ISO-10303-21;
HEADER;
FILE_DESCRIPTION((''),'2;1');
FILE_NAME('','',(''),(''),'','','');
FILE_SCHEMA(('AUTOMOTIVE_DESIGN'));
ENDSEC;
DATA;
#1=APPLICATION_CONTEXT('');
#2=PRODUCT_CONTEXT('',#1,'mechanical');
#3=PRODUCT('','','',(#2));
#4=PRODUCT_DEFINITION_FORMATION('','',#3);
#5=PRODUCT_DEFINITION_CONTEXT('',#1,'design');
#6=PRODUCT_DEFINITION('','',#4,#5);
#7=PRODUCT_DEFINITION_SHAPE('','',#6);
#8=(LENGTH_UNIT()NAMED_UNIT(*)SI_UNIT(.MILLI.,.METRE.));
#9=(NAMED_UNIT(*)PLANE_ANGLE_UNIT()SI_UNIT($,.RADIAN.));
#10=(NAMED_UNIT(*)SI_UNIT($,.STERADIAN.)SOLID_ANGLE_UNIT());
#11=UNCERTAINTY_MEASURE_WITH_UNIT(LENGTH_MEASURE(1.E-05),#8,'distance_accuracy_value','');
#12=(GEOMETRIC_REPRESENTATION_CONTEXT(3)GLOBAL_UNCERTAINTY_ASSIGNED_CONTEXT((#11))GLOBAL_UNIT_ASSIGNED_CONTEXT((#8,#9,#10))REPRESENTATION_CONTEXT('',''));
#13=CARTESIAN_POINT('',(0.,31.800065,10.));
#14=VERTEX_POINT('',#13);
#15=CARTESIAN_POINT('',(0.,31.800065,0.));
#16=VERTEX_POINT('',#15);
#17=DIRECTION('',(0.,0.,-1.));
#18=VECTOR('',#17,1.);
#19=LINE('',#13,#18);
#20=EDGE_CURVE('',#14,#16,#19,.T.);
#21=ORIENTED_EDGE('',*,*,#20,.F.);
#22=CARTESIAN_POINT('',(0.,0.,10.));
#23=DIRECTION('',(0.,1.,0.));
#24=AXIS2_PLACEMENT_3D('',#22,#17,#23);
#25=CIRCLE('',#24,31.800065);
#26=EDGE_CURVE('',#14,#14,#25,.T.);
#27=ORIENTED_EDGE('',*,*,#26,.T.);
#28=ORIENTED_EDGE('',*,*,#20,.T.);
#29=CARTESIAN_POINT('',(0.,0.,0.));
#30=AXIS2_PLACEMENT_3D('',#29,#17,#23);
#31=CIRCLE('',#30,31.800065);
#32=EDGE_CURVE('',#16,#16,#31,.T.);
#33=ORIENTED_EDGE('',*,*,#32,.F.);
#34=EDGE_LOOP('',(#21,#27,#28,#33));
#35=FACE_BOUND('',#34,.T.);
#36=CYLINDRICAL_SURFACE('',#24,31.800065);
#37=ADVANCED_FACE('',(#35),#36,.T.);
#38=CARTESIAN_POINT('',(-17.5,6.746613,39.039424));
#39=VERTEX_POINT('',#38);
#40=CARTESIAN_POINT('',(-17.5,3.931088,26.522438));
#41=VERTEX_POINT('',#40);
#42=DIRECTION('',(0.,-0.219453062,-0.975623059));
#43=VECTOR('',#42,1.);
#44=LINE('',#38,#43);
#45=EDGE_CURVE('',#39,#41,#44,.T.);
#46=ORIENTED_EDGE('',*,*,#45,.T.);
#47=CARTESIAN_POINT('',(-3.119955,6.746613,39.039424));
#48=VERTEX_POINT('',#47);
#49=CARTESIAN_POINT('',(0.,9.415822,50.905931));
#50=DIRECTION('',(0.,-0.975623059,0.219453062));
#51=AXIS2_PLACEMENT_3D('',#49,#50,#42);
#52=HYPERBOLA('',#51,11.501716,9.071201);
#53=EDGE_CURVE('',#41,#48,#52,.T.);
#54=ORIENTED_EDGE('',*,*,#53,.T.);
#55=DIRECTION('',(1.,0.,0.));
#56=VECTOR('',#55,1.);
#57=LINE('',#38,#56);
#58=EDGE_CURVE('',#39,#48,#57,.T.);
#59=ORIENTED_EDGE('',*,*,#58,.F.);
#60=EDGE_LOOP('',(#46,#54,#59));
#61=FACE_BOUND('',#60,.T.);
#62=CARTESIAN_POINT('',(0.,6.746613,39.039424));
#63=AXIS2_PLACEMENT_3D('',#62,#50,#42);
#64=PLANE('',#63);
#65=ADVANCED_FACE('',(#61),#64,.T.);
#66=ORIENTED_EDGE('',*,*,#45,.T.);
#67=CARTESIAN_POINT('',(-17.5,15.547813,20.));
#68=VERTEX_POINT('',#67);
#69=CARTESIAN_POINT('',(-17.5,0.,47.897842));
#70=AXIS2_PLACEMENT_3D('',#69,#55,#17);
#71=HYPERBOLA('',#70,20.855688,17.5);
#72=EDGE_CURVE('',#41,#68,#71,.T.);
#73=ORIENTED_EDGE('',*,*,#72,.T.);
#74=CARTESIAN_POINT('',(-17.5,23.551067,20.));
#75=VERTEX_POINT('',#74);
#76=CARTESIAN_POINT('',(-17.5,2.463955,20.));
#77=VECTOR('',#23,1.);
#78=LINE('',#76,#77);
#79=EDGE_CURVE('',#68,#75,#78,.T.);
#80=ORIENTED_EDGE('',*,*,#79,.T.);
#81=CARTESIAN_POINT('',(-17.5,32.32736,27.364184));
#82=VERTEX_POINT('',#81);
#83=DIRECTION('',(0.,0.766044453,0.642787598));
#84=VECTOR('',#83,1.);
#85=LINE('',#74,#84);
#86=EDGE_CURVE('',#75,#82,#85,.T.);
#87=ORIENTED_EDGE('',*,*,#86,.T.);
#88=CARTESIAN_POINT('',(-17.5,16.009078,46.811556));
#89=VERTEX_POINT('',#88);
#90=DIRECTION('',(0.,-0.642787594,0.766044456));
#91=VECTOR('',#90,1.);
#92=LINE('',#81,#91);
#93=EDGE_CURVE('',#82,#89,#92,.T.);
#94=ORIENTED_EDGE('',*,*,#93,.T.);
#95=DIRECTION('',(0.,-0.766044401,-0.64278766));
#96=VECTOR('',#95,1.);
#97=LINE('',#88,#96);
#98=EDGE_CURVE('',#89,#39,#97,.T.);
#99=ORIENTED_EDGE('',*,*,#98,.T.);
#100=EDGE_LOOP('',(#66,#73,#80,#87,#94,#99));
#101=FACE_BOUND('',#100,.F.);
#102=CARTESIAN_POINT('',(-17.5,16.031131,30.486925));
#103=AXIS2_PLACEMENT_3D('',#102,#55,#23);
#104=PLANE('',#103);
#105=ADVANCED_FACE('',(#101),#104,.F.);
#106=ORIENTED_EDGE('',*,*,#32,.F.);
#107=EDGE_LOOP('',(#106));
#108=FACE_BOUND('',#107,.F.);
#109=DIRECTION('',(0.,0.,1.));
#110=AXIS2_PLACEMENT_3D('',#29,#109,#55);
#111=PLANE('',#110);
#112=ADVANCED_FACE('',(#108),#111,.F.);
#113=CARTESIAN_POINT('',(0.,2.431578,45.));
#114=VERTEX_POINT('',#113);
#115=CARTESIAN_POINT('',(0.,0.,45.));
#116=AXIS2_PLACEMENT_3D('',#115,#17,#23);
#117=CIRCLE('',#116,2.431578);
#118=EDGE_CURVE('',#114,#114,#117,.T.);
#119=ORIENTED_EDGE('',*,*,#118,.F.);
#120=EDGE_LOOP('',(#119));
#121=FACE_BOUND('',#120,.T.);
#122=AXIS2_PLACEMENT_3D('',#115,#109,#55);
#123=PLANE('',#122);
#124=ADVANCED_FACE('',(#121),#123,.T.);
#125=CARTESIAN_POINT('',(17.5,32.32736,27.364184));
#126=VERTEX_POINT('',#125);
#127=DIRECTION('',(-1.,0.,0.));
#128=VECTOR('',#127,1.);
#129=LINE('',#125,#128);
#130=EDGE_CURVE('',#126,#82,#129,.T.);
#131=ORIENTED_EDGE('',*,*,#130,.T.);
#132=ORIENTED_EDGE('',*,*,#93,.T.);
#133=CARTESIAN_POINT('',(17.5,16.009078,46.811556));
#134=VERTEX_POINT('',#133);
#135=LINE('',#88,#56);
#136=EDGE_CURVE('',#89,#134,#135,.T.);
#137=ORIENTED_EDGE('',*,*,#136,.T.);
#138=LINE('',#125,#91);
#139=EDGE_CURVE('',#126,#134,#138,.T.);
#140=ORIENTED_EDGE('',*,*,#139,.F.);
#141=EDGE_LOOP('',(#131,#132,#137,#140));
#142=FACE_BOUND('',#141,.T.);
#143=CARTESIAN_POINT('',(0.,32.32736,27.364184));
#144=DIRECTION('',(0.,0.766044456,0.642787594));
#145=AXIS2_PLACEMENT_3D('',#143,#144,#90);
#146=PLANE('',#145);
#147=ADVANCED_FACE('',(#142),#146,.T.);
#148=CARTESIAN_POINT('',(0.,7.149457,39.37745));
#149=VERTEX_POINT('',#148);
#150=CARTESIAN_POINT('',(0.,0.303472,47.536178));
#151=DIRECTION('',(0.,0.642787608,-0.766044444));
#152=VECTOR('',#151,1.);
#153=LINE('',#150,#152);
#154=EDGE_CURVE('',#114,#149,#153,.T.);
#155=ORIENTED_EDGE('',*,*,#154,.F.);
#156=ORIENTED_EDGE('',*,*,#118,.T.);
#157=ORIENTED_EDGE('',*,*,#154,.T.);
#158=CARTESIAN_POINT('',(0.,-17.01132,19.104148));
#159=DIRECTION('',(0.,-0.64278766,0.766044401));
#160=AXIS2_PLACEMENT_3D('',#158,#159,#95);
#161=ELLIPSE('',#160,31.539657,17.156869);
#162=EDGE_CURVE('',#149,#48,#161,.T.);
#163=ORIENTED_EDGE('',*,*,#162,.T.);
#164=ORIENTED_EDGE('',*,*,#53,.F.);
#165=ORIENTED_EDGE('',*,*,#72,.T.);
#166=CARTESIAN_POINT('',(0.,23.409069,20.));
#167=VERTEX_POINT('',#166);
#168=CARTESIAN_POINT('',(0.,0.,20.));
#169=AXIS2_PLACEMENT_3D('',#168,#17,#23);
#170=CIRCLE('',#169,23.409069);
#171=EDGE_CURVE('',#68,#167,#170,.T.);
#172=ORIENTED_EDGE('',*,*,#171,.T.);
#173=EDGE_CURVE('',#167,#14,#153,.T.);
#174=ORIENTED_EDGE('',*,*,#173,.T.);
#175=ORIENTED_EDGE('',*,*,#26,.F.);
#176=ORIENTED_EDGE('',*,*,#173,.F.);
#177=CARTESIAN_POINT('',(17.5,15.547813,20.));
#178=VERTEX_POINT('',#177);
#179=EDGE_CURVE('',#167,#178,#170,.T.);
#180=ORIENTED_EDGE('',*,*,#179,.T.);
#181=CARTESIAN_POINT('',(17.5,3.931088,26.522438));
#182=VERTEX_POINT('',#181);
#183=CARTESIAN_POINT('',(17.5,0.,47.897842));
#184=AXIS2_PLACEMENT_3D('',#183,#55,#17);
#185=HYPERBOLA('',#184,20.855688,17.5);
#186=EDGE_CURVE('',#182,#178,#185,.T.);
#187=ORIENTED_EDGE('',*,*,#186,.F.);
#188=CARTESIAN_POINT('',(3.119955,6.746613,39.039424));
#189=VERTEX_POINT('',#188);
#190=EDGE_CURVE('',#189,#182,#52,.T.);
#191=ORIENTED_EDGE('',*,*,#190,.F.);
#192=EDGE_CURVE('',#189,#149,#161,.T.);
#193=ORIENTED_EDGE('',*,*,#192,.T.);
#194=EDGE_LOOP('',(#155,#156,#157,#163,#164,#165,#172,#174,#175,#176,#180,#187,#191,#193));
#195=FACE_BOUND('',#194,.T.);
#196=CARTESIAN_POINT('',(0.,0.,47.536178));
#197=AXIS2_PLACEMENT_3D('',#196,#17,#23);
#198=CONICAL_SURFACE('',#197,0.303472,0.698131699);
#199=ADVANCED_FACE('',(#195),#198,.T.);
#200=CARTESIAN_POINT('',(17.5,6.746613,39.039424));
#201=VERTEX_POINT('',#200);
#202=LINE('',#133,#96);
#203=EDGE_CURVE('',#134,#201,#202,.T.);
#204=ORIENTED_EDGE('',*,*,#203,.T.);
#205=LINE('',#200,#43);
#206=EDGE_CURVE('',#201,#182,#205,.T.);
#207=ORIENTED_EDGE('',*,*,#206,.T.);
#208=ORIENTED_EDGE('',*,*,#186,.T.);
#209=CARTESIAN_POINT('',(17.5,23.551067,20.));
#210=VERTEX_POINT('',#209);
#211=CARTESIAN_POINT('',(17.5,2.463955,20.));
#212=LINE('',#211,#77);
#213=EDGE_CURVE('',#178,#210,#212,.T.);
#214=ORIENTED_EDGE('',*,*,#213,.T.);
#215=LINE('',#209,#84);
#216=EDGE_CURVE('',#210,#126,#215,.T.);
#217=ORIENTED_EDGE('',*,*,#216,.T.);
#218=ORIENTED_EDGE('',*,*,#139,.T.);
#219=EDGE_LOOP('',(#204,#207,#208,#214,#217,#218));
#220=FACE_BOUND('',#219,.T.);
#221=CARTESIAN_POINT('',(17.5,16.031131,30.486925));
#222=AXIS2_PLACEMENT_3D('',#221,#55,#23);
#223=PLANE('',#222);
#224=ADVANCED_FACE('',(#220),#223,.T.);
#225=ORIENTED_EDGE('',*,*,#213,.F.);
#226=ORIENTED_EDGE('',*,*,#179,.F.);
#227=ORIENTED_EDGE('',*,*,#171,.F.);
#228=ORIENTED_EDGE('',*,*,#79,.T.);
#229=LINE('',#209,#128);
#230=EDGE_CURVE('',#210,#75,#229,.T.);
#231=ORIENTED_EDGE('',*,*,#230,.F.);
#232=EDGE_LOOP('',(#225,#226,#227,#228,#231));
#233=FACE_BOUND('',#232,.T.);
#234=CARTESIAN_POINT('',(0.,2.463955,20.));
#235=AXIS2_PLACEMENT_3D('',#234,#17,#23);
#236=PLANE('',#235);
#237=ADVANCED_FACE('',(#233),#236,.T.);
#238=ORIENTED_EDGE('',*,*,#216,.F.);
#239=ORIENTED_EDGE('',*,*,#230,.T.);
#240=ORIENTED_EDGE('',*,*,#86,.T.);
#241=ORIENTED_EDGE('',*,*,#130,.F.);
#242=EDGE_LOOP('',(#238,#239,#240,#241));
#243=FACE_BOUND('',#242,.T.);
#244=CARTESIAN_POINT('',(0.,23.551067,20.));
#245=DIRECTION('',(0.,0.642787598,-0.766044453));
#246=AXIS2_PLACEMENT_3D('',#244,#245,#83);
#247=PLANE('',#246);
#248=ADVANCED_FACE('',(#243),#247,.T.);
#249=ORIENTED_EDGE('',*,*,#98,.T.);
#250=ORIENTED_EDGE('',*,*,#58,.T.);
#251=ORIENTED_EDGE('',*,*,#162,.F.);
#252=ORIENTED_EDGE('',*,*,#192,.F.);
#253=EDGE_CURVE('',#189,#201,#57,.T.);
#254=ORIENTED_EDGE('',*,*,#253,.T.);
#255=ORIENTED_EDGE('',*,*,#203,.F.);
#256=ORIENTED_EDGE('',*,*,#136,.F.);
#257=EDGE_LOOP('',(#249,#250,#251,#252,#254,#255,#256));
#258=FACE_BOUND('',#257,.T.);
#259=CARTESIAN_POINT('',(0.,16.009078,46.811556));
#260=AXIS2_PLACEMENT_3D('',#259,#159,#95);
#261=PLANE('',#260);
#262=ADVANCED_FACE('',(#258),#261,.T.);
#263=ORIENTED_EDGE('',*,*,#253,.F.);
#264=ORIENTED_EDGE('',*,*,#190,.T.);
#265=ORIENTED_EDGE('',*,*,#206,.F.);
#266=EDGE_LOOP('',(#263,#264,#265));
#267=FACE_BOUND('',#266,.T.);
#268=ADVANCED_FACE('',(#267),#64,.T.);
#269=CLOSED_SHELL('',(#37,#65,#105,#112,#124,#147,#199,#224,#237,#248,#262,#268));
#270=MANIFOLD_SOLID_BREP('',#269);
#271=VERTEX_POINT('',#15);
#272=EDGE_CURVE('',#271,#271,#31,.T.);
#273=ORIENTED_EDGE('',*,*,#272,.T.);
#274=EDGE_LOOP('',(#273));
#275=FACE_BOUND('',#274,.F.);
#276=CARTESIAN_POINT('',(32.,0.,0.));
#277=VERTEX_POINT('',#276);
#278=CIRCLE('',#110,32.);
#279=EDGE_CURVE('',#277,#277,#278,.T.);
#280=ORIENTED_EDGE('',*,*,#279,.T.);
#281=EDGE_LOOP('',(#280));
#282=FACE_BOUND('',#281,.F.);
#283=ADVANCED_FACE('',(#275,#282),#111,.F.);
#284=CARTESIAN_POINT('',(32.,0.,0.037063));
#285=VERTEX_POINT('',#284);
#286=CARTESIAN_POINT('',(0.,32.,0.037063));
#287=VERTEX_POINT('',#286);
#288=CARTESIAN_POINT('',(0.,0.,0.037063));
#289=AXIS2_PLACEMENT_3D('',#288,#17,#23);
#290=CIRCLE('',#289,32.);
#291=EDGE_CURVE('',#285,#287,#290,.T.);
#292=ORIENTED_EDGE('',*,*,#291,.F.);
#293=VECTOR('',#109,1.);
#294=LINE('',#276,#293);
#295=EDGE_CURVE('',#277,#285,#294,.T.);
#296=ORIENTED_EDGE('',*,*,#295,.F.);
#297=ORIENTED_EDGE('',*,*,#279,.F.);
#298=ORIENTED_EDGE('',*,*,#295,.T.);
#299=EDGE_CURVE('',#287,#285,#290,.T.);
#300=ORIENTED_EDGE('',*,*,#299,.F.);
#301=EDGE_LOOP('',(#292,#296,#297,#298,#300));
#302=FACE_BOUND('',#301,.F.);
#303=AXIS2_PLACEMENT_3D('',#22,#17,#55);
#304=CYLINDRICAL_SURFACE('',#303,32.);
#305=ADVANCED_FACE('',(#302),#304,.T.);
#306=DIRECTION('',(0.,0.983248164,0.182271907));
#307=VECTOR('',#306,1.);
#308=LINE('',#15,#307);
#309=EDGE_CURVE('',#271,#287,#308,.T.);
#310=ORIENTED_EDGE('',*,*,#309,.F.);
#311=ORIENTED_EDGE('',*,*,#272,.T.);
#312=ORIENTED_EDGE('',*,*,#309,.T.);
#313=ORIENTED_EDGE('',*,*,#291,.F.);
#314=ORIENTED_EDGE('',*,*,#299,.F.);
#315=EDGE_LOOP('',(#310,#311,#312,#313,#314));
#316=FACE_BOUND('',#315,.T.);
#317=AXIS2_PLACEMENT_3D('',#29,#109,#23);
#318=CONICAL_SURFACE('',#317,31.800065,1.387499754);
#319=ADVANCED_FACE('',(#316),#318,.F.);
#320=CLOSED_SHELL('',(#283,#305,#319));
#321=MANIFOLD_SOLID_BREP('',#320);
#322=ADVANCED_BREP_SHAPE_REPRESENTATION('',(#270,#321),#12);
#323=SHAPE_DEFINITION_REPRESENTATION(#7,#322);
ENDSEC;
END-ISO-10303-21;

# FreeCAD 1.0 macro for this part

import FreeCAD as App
import Part
import Sketcher

V = App.Vector
Q = App.Units.Quantity

doc = App.newDocument("Part")
params = doc.addObject("Spreadsheet::Sheet", "Params")
for row, (alias, value) in enumerate([
    ("sketch1_diameter", "64 mm"),
    ("pad1_length", "10 mm"),
    ("sketch2_diameter", "64 mm"),
    ("pad2_length", "35 mm"),
    ("sketch3_height", "10 mm"),
    ("sketch3_length", "49 mm"),
    ("groove_angle", "360 deg"),
    ("pad3_length", "35 mm"),
], start=1):
    params.set(f"A{row}", alias)
    params.set(f"B{row}", "=" + value)
    params.setAlias(f"B{row}", alias)

body = doc.addObject("PartDesign::Body", "Body")
body.AllowCompound = True

# Sketch on XY plane
sketch1 = body.newObject("Sketcher::SketchObject", "Sketch")
sketch1.AttachmentSupport = (doc.getObject("XY_Plane"), [""])
sketch1.MapMode = "FlatFace"
sketch1.addGeometry(Part.Circle(V(0, 0, 0), V(0, 0, 1), 32), False)
sketch1.addConstraint([
    Sketcher.Constraint("Coincident", 0, 3, -1, 1),
    Sketcher.Constraint("Diameter", 0, 64.0),
])
sketch1.setExpression("Constraints[1]", "Params.sketch1_diameter")
pad1 = body.newObject("PartDesign::Pad", "Pad")
pad1.Profile = sketch1
pad1.setExpression("Length", "Params.pad1_length")

# Sketch on XY plane
sketch2 = body.newObject("Sketcher::SketchObject", "Sketch001")
sketch2.AttachmentSupport = (doc.getObject("XY_Plane"), [""])
sketch2.MapMode = "FlatFace"
sketch2.AttachmentOffset = App.Placement(V(0, 0, 10), App.Rotation())
sketch2.addGeometry(Part.Circle(V(0, 0, 0), V(0, 0, 1), 32), False)
sketch2.addConstraint([
    Sketcher.Constraint("Coincident", 0, 3, -1, 1),
    Sketcher.Constraint("Diameter", 0, 64.0),
])
sketch2.setExpression("Constraints[1]", "Params.sketch2_diameter")
pad2 = body.newObject("PartDesign::Pad", "Pad001")
pad2.Profile = sketch2
pad2.setExpression("Length", "Params.pad2_length")

# Sketch on YZ plane
sketch3 = body.newObject("Sketcher::SketchObject", "Sketch002")
sketch3.AttachmentSupport = (doc.getObject("YZ_Plane"), [""])
sketch3.MapMode = "FlatFace"
sketch3.addGeometry([
    Part.LineSegment(V(36, 48, 0), V(0, 48, 0)),  # 0
    Part.LineSegment(V(0, 48, 0), V(32, 10, 0)),  # 1
    Part.LineSegment(V(32, 10, 0), V(32, 0, 0)),  # 2
    Part.LineSegment(V(32, 0, 0), V(39, 1, 0)),  # 3
    Part.LineSegment(V(39, 1, 0), V(40, 14, 0)),  # 4
    Part.LineSegment(V(40, 14, 0), V(36, 48, 0)),  # 5
], False)
sketch3.addConstraint([
    Sketcher.Constraint("Coincident", 0, 2, 1, 1),
    Sketcher.Constraint("Coincident", 1, 2, 2, 1),
    Sketcher.Constraint("Coincident", 2, 2, 3, 1),
    Sketcher.Constraint("Coincident", 3, 2, 4, 1),
    Sketcher.Constraint("Coincident", 4, 2, 5, 1),
    Sketcher.Constraint("Coincident", 5, 2, 0, 1),
    Sketcher.Constraint("Horizontal", 0),
    Sketcher.Constraint("Vertical", 2),
    Sketcher.Constraint("PointOnObject", 2, 2, -1),
    Sketcher.Constraint("DistanceY", 2, 2, 2, 1, 10.0),
    Sketcher.Constraint("Angle", 1, Q("-50 deg")),
    Sketcher.Constraint("Distance", 1, 49.0),
    Sketcher.Constraint("DistanceX", 0, 2, 0, 1, 35.249574),
    Sketcher.Constraint("DistanceY", -1, 1, 4, 2, 13.93372),
    Sketcher.Constraint("DistanceX", 2, 2, 3, 2, 7.22323),
    Sketcher.Constraint("DistanceX", 1, 2, 4, 2, 8.283839),
    Sketcher.Constraint("Distance", 3, 7.346294),
    Sketcher.Constraint("DistanceX", -1, 1, 0, 2, 0.303472),
])
sketch3.setExpression("Constraints[9]", "Params.sketch3_height")
sketch3.setExpression("Constraints[11]", "Params.sketch3_length")
groove = body.newObject("PartDesign::Groove", "Groove")
groove.Profile = sketch3
groove.ReferenceAxis = (sketch3, ["V_Axis"])
groove.setExpression("Angle", "Params.groove_angle")

# Sketch on YZ plane
sketch4 = body.newObject("Sketcher::SketchObject", "Sketch003")
sketch4.AttachmentSupport = (doc.getObject("YZ_Plane"), [""])
sketch4.MapMode = "FlatFace"
sketch4.addGeometry([
    Part.LineSegment(V(32, 27, 0), V(16, 47, 0)),  # 0
    Part.LineSegment(V(16, 47, 0), V(7, 39, 0)),  # 1
    Part.LineSegment(V(7, 39, 0), V(2, 20, 0)),  # 2
    Part.LineSegment(V(2, 20, 0), V(24, 20, 0)),  # 3
    Part.LineSegment(V(24, 20, 0), V(32, 27, 0)),  # 4
], False)
sketch4.addConstraint([
    Sketcher.Constraint("Coincident", 0, 2, 1, 1),
    Sketcher.Constraint("Coincident", 1, 2, 2, 1),
    Sketcher.Constraint("Coincident", 2, 2, 3, 1),
    Sketcher.Constraint("Coincident", 3, 2, 4, 1),
    Sketcher.Constraint("Coincident", 4, 2, 0, 1),
    Sketcher.Constraint("Horizontal", 3),
    Sketcher.Constraint("Perpendicular", 0, 1),
    Sketcher.Constraint("Parallel", 1, 4),
    Sketcher.Constraint("Angle", 0, Q("129.999999 deg")),
    Sketcher.Constraint("DistanceY", -1, 1, 2, 2, 20.0),
    Sketcher.Constraint("Distance", 0, 25.386741),
    Sketcher.Constraint("Distance", 1, 12.09129),
    Sketcher.Constraint("DistanceX", 3, 1, 3, 2, 21.087112),
    Sketcher.Constraint("DistanceX", -1, 1, 4, 2, 32.32736),
    Sketcher.Constraint("DistanceX", 0, 2, 3, 2, 7.541989),
])
pad3 = body.newObject("PartDesign::Pad", "Pad002")
pad3.Profile = sketch4
pad3.setExpression("Length", "Params.pad3_length")
pad3.Midplane = True

doc.recompute()
